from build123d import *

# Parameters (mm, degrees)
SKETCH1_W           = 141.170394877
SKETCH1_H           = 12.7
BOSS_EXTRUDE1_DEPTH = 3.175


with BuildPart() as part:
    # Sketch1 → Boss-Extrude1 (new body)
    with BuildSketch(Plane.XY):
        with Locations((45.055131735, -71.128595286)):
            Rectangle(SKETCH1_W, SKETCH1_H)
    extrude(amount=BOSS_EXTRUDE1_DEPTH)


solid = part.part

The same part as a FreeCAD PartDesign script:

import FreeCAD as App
import Part
import Sketcher

V = App.Vector
Q = App.Units.Quantity

doc = App.newDocument("Part")
body = doc.addObject("PartDesign::Body", "Body")

sketch1 = doc.addObject("Sketcher::SketchObject", "Sketch")
body.addObject(sketch1)
sketch1.AttachmentSupport = (doc.XY_Plane, [""])
sketch1.MapMode = "FlatFace"
sketch1.addGeometry([
    Part.LineSegment(V(-26, -65, 0), V(-26, -77, 0)),
    Part.LineSegment(V(-26, -77, 0), V(116, -77, 0)),
    Part.LineSegment(V(116, -77, 0), V(116, -65, 0)),
    Part.LineSegment(V(116, -65, 0), V(-26, -65, 0)),
], False)
sketch1.addConstraint([
    Sketcher.Constraint("Coincident", 0, 2, 1, 1),
    Sketcher.Constraint("Coincident", 1, 2, 2, 1),
    Sketcher.Constraint("Coincident", 2, 2, 3, 1),
    Sketcher.Constraint("Coincident", 3, 2, 0, 1),
    Sketcher.Constraint("Vertical", 0),
    Sketcher.Constraint("Horizontal", 1),
    Sketcher.Constraint("Vertical", 2),
    Sketcher.Constraint("Horizontal", 3),
    Sketcher.Constraint("DistanceY", 0, 2, 0, 1, Q("0.5 in")),
    Sketcher.Constraint("DistanceX", 1, 1, 1, 2, 141.170395),
    Sketcher.Constraint("DistanceX", -1, 1, 1, 2, 115.640329),
    Sketcher.Constraint("DistanceY", 0, 2, -1, 1, 77.478595),
])
pad1 = doc.addObject("PartDesign::Pad", "Pad")
body.addObject(pad1)
pad1.Profile = sketch1
pad1.Length = Q("0.125 in")

doc.recompute()
